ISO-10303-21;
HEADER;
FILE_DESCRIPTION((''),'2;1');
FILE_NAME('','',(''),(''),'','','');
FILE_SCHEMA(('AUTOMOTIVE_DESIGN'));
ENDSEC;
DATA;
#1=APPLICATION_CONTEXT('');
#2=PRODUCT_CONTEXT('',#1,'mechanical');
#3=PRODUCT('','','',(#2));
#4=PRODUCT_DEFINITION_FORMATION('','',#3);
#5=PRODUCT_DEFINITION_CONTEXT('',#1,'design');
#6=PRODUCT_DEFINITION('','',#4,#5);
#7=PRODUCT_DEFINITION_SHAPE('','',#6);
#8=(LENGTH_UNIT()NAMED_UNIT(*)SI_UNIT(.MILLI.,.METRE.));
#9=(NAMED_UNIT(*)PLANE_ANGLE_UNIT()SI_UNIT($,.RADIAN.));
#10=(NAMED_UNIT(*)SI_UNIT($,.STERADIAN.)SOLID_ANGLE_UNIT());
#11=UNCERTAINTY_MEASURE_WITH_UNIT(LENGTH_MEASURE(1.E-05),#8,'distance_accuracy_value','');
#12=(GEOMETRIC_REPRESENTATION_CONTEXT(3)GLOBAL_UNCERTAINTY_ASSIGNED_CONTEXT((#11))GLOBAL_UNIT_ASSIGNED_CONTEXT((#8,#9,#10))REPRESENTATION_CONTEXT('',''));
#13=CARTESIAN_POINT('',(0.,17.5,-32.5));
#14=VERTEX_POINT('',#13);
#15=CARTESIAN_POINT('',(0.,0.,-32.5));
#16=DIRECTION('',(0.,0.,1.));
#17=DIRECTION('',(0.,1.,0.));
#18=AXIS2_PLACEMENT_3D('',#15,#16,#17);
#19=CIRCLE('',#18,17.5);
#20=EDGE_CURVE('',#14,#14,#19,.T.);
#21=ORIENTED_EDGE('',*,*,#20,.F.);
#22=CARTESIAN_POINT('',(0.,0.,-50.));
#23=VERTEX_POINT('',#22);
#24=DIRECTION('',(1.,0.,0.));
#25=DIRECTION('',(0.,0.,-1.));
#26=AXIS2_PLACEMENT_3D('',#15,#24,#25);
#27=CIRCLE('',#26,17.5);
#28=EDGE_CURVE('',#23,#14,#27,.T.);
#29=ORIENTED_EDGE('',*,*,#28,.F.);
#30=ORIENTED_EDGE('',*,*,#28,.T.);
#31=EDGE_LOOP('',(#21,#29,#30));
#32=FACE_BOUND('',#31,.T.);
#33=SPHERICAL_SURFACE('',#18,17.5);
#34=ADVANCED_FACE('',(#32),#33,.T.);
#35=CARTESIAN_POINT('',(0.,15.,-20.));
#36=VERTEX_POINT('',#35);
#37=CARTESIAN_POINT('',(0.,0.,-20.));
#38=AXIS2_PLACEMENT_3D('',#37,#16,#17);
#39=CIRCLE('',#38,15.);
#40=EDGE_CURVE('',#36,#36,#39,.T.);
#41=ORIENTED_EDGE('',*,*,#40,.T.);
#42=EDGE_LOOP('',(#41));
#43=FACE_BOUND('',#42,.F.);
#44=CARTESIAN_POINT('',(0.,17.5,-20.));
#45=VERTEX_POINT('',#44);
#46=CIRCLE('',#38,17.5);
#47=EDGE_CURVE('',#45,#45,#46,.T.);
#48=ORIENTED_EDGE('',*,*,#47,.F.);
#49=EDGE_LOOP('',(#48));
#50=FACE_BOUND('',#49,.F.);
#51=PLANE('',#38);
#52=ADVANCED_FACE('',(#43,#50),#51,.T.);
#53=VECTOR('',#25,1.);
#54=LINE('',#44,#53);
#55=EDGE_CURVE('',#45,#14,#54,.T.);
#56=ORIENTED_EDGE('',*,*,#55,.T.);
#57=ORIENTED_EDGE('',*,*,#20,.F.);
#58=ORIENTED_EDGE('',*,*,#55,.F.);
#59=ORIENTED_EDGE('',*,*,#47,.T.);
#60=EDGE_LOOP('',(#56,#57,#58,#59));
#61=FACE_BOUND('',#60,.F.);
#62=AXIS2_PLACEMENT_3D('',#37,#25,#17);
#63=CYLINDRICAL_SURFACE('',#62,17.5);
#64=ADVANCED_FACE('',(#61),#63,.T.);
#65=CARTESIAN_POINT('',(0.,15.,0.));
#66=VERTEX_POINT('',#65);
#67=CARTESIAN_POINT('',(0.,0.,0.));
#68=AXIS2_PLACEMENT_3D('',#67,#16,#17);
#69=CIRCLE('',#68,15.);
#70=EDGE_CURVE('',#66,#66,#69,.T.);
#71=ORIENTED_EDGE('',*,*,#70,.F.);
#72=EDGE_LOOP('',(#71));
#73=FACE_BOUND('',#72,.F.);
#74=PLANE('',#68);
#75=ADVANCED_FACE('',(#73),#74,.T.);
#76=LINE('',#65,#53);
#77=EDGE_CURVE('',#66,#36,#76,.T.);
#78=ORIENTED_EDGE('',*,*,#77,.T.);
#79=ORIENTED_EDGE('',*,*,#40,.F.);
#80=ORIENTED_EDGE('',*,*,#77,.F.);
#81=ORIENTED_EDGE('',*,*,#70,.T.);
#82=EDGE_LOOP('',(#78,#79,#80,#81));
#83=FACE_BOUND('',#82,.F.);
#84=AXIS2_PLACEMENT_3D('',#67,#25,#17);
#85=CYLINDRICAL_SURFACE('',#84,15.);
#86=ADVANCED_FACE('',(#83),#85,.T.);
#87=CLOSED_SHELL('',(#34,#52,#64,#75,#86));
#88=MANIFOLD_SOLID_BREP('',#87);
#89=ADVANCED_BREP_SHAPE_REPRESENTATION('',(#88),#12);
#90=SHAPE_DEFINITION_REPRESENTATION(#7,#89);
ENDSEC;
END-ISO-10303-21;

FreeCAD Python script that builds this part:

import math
import FreeCAD as App
import Part
import Sketcher
from FreeCAD import Vector

doc = App.newDocument("Part")
body = doc.addObject("PartDesign::Body", "Body")

# Sketch on YZ plane
sketch1 = body.newObject("Sketcher::SketchObject", "Sketch")
sketch1.AttachmentSupport = (doc.getObject("YZ_Plane"), [""])
sketch1.MapMode = "FlatFace"
sketch1.addGeometry(Part.LineSegment(Vector(15, 0, 0), Vector(0, 0, 0)), False)
sketch1.addGeometry(Part.LineSegment(Vector(0, 0, 0), Vector(0, -50, 0)), False)
sketch1.addGeometry(Part.ArcOfCircle(Part.Circle(Vector(0, -32.5, 0), Vector(0, 0, 1), 17.5), math.radians(-90), math.radians(0)), False)
sketch1.addGeometry(Part.LineSegment(Vector(17.5, -32.5, 0), Vector(17.5, -20, 0)), False)
sketch1.addGeometry(Part.LineSegment(Vector(17.5, -20, 0), Vector(15, -20, 0)), False)
sketch1.addGeometry(Part.LineSegment(Vector(15, -20, 0), Vector(15, 0, 0)), False)
sketch1.addConstraint(Sketcher.Constraint("Coincident", 0, 2, 1, 1))
sketch1.addConstraint(Sketcher.Constraint("Coincident", 1, 2, 2, 1))
sketch1.addConstraint(Sketcher.Constraint("Tangent", 2, 2, 3, 1))
sketch1.addConstraint(Sketcher.Constraint("Coincident", 3, 2, 4, 1))
sketch1.addConstraint(Sketcher.Constraint("Coincident", 4, 2, 5, 1))
sketch1.addConstraint(Sketcher.Constraint("Coincident", 5, 2, 0, 1))
sketch1.addConstraint(Sketcher.Constraint("Horizontal", 0))
sketch1.addConstraint(Sketcher.Constraint("Vertical", 1))
sketch1.addConstraint(Sketcher.Constraint("Vertical", 3))
sketch1.addConstraint(Sketcher.Constraint("Horizontal", 4))
sketch1.addConstraint(Sketcher.Constraint("Vertical", 5))
sketch1.addConstraint(Sketcher.Constraint("Coincident", 0, 2, -1, 1))
sketch1.addConstraint(Sketcher.Constraint("PointOnObject", 2, 3, -2))
sketch1.addConstraint(Sketcher.Constraint("Radius", 2, 17.5))
sketch1.addConstraint(Sketcher.Constraint("DistanceX", 0, 2, 0, 1, 15.0))
sketch1.addConstraint(Sketcher.Constraint("DistanceY", 5, 1, 5, 2, 20.0))
sketch1.addConstraint(Sketcher.Constraint("DistanceY", 3, 1, 3, 2, 12.5))
revolution = body.newObject("PartDesign::Revolution", "Revolution")
revolution.Profile = sketch1
revolution.ReferenceAxis = (sketch1, ["V_Axis"])
revolution.Angle = 360

doc.recompute()
